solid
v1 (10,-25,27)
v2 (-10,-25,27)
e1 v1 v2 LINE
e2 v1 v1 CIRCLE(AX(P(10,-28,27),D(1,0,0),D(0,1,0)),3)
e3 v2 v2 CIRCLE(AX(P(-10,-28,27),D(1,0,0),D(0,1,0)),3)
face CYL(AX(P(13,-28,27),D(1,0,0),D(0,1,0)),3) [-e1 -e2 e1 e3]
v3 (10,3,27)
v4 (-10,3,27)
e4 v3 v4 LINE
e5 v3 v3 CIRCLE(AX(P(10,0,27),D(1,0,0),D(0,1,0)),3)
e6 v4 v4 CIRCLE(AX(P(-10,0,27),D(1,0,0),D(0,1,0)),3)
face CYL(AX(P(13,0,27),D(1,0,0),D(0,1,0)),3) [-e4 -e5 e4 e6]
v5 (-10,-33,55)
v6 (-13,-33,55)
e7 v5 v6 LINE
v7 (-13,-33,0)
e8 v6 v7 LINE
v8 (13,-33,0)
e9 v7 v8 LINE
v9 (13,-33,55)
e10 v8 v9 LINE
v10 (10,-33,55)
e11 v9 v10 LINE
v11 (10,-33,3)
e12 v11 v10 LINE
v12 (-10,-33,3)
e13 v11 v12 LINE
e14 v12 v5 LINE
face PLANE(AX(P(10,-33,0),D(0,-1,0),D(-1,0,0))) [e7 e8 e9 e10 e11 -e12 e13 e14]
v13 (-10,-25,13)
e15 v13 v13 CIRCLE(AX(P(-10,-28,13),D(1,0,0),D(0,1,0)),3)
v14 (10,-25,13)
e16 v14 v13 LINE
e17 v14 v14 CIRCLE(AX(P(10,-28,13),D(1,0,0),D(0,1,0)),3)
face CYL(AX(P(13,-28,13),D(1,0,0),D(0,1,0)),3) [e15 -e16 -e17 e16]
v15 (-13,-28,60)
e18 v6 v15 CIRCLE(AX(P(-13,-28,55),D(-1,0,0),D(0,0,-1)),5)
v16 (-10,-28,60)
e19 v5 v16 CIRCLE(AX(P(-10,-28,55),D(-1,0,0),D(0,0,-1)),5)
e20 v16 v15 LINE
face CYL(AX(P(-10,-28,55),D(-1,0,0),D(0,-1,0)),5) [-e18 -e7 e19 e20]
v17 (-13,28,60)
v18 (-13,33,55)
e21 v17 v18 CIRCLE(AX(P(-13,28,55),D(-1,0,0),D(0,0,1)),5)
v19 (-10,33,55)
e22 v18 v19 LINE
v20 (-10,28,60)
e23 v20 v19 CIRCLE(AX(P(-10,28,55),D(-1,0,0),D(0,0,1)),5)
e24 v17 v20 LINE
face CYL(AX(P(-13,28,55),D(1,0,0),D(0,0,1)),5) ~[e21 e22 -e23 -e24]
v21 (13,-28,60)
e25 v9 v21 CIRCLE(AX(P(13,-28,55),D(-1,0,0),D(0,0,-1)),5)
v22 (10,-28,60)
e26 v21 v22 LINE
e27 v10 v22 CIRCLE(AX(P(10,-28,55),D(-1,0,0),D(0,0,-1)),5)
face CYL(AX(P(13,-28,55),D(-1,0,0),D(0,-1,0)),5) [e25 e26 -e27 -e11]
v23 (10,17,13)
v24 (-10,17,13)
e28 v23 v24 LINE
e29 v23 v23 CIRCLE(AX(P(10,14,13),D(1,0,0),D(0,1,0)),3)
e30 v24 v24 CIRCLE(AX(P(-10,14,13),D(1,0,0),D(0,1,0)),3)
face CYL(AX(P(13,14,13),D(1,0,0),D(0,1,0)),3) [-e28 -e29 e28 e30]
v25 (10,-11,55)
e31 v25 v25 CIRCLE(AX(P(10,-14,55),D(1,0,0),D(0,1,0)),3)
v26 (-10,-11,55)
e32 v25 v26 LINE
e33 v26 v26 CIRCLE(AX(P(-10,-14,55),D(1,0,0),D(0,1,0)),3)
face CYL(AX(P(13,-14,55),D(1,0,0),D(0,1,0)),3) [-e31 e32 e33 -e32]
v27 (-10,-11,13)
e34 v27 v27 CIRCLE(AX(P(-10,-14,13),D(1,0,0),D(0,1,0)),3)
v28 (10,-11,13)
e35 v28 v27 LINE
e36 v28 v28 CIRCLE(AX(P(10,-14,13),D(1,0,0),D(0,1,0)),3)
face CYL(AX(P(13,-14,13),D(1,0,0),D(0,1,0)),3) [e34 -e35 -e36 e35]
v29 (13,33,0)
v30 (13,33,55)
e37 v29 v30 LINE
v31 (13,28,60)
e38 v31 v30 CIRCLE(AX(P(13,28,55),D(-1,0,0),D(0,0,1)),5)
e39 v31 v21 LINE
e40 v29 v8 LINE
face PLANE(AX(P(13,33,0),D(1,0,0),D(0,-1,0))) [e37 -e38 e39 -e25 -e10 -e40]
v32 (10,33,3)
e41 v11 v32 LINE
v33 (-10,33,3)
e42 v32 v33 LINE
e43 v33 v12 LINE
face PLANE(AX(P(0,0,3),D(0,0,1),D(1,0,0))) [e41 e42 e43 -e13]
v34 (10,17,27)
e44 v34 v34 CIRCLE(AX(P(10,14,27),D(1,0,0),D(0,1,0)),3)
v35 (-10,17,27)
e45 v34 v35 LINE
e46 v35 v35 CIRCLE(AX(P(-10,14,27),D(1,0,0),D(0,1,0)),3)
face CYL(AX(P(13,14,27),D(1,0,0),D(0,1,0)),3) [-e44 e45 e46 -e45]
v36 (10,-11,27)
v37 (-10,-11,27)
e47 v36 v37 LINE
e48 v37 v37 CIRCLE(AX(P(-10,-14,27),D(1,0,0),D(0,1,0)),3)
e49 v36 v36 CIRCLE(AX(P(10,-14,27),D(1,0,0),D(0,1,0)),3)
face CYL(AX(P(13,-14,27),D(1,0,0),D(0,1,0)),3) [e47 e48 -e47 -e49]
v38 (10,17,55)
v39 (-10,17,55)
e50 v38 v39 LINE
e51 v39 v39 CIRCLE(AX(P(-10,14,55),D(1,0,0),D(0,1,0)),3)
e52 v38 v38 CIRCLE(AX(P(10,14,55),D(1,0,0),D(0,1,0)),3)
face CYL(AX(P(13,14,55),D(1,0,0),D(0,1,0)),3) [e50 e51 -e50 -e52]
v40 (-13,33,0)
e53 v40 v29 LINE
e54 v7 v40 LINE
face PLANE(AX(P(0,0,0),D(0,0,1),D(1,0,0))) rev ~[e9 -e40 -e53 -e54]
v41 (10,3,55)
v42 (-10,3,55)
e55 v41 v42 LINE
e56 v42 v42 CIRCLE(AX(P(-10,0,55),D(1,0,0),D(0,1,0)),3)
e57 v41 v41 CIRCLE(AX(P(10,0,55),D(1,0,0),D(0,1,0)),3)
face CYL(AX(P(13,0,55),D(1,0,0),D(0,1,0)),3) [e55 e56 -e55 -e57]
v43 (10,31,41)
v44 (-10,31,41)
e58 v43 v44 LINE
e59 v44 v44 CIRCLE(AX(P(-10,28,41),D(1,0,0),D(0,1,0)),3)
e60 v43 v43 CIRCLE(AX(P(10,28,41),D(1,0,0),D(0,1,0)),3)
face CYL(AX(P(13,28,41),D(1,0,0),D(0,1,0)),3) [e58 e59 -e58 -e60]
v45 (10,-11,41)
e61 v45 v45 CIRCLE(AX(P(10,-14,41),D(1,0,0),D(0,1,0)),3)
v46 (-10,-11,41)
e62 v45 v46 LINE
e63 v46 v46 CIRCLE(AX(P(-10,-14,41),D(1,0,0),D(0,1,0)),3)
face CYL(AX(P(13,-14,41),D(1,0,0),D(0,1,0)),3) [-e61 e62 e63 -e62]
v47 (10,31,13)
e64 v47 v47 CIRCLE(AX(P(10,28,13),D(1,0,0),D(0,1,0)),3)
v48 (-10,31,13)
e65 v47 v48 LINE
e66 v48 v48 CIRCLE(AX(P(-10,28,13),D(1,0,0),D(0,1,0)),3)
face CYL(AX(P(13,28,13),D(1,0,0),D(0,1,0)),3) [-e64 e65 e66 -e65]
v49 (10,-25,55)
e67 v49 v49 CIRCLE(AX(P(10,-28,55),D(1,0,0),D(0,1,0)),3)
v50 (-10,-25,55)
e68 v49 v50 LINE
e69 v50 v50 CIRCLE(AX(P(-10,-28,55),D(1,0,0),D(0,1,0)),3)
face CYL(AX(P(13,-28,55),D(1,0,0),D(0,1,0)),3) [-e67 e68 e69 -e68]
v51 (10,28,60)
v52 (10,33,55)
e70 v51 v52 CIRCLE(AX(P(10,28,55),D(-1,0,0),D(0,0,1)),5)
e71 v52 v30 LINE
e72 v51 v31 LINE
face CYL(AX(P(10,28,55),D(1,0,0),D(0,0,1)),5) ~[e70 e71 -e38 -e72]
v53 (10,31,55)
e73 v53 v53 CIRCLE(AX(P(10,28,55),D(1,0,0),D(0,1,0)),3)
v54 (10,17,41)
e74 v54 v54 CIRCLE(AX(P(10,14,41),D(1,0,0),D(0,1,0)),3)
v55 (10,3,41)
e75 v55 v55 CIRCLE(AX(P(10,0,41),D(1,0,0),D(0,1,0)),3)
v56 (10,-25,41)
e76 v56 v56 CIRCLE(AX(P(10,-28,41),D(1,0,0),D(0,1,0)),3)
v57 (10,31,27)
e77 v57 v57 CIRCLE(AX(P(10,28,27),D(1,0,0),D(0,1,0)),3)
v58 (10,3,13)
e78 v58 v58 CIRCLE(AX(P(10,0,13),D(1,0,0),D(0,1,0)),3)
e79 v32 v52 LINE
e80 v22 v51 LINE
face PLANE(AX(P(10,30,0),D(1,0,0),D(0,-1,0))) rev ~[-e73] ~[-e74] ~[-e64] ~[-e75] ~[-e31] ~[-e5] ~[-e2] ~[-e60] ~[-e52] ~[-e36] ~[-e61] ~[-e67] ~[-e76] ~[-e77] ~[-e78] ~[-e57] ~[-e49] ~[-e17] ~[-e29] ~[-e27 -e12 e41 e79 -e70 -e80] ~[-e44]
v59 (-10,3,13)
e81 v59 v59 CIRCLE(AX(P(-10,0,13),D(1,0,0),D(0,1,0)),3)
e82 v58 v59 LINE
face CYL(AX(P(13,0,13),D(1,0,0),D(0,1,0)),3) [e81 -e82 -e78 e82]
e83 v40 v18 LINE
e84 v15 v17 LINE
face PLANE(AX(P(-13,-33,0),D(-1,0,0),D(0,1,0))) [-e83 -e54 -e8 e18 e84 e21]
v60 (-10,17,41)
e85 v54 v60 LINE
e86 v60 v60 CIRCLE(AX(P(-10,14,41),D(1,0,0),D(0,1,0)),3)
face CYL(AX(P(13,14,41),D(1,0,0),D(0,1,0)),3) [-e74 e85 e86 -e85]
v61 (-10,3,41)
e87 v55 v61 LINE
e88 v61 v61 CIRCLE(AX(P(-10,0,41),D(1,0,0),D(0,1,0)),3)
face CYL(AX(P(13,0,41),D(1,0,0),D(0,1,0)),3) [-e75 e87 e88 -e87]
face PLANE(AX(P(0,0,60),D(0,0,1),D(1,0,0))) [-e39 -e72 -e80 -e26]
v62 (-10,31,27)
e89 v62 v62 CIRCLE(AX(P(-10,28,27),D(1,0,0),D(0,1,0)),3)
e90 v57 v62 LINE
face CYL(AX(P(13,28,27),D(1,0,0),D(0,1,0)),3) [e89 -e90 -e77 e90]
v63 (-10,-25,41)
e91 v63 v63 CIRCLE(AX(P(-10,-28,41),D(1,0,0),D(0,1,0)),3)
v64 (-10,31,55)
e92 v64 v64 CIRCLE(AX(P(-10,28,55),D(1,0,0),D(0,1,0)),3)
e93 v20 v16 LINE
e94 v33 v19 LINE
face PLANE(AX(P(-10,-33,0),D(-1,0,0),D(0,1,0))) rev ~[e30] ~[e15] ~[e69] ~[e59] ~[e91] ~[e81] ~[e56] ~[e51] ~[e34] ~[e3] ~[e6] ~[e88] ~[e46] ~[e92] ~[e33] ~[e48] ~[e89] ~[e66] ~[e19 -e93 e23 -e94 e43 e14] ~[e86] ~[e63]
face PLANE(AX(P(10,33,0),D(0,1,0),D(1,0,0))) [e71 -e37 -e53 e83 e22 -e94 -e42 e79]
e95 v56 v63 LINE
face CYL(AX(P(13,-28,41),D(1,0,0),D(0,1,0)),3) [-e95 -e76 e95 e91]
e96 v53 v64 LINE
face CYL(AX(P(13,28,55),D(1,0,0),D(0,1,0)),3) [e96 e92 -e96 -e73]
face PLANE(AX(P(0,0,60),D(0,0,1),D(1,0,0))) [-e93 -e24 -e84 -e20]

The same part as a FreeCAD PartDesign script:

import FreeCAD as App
import Part
import Sketcher


def edges_at(feature, points):
    """Names of the edges that pass closest to the given points."""
    edges = feature.Shape.Edges
    near = lambda p: min(range(len(edges)), key=lambda i: edges[i].distToShape(Part.Vertex(*p))[0])
    return sorted({f"Edge{near(p) + 1}" for p in points})

doc = App.newDocument("Part")
body = doc.addObject("PartDesign::Body", "Body")

# Sketch on XY plane
sketch1 = doc.addObject("Sketcher::SketchObject", "Sketch")
body.addObject(sketch1)
sketch1.AttachmentSupport = (doc.XY_Plane, [""])
sketch1.MapMode = "FlatFace"
sketch1.addGeometry([
    Part.LineSegment(App.Vector(13, -33, 0), App.Vector(13, 33, 0)),
    Part.LineSegment(App.Vector(13, 33, 0), App.Vector(-13, 33, 0)),
    Part.LineSegment(App.Vector(-13, 33, 0), App.Vector(-13, -33, 0)),
    Part.LineSegment(App.Vector(-13, -33, 0), App.Vector(13, -33, 0)),
], False)
sketch1.addConstraint([
    Sketcher.Constraint("Coincident", 0, 2, 1, 1),
    Sketcher.Constraint("Coincident", 1, 2, 2, 1),
    Sketcher.Constraint("Coincident", 2, 2, 3, 1),
    Sketcher.Constraint("Coincident", 3, 2, 0, 1),
    Sketcher.Constraint("Vertical", 0),
    Sketcher.Constraint("Horizontal", 1),
    Sketcher.Constraint("Vertical", 2),
    Sketcher.Constraint("Horizontal", 3),
    Sketcher.Constraint("Symmetric", 0, 2, 2, 2, -1, 1),
    Sketcher.Constraint("DistanceX", 1, 2, 1, 1, 26.0),
    Sketcher.Constraint("DistanceY", 0, 1, 0, 2, 66.0),
])
pad1 = doc.addObject("PartDesign::Pad", "Pad")
body.addObject(pad1)
pad1.Profile = sketch1
pad1.Length = 3

# Sketch on XY plane
sketch2 = doc.addObject("Sketcher::SketchObject", "Sketch001")
body.addObject(sketch2)
sketch2.AttachmentSupport = (doc.XY_Plane, [""])
sketch2.MapMode = "FlatFace"
sketch2.addGeometry([
    Part.LineSegment(App.Vector(10, 33, 0), App.Vector(10, -33, 0)),  # 0
    Part.LineSegment(App.Vector(10, -33, 0), App.Vector(13, -33, 0)),  # 1
    Part.LineSegment(App.Vector(13, -33, 0), App.Vector(13, 33, 0)),  # 2
    Part.LineSegment(App.Vector(13, 33, 0), App.Vector(10, 33, 0)),  # 3
    Part.LineSegment(App.Vector(-10, -33, 0), App.Vector(-10, 33, 0)),  # 4
    Part.LineSegment(App.Vector(-10, 33, 0), App.Vector(-13, 33, 0)),  # 5
    Part.LineSegment(App.Vector(-13, 33, 0), App.Vector(-13, -33, 0)),  # 6
    Part.LineSegment(App.Vector(-13, -33, 0), App.Vector(-10, -33, 0)),  # 7
], False)
sketch2.addConstraint([
    Sketcher.Constraint("Coincident", 0, 2, 1, 1),
    Sketcher.Constraint("Coincident", 1, 2, 2, 1),
    Sketcher.Constraint("Coincident", 2, 2, 3, 1),
    Sketcher.Constraint("Coincident", 3, 2, 0, 1),
    Sketcher.Constraint("Coincident", 4, 2, 5, 1),
    Sketcher.Constraint("Coincident", 5, 2, 6, 1),
    Sketcher.Constraint("Coincident", 6, 2, 7, 1),
    Sketcher.Constraint("Coincident", 7, 2, 4, 1),
    Sketcher.Constraint("Vertical", 0),
    Sketcher.Constraint("Horizontal", 1),
    Sketcher.Constraint("Vertical", 2),
    Sketcher.Constraint("Horizontal", 3),
    Sketcher.Constraint("Vertical", 4),
    Sketcher.Constraint("Horizontal", 5),
    Sketcher.Constraint("Vertical", 6),
    Sketcher.Constraint("Horizontal", 7),
    Sketcher.Constraint("Symmetric", 0, 2, 4, 2, -1, 1),
    Sketcher.Constraint("Symmetric", 2, 2, 6, 2, -1, 1),
    Sketcher.Constraint("Horizontal", 3, 2, 4, 2),
    Sketcher.Constraint("DistanceX", 1, 1, 1, 2, 3.0),
    Sketcher.Constraint("DistanceY", 0, 2, 0, 1, 66.0),
    Sketcher.Constraint("DistanceX", -1, 1, 0, 2, 10.0),
])
pad2 = doc.addObject("PartDesign::Pad", "Pad001")
body.addObject(pad2)
pad2.Profile = sketch2
pad2.Length = 60

# Sketch on YZ plane
sketch3 = doc.addObject("Sketcher::SketchObject", "Sketch002")
body.addObject(sketch3)
sketch3.AttachmentSupport = (doc.YZ_Plane, [""])
sketch3.MapMode = "FlatFace"
sketch3.AttachmentOffset = App.Placement(App.Vector(0, 0, 13), App.Rotation())
sketch3.addGeometry([
    Part.Circle(App.Vector(-28, 55, 0), App.Vector(0, 0, 1), 3),  # 0
    Part.Circle(App.Vector(0, 55, 0), App.Vector(0, 0, 1), 3),  # 1
    Part.Circle(App.Vector(-14, 55, 0), App.Vector(0, 0, 1), 3),  # 2
    Part.Circle(App.Vector(0, 13, 0), App.Vector(0, 0, 1), 3),  # 3
    Part.Circle(App.Vector(14, 55, 0), App.Vector(0, 0, 1), 3),  # 4
    Part.Circle(App.Vector(28, 55, 0), App.Vector(0, 0, 1), 3),  # 5
    Part.Circle(App.Vector(-28, 41, 0), App.Vector(0, 0, 1), 3),  # 6
    Part.Circle(App.Vector(-14, 41, 0), App.Vector(0, 0, 1), 3),  # 7
    Part.Circle(App.Vector(0, 41, 0), App.Vector(0, 0, 1), 3),  # 8
    Part.Circle(App.Vector(14, 41, 0), App.Vector(0, 0, 1), 3),  # 9
    Part.Circle(App.Vector(28, 41, 0), App.Vector(0, 0, 1), 3),  # 10
    Part.Circle(App.Vector(-28, 27, 0), App.Vector(0, 0, 1), 3),  # 11
    Part.Circle(App.Vector(-14, 27, 0), App.Vector(0, 0, 1), 3),  # 12
    Part.Circle(App.Vector(0, 27, 0), App.Vector(0, 0, 1), 3),  # 13
    Part.Circle(App.Vector(14, 27, 0), App.Vector(0, 0, 1), 3),  # 14
    Part.Circle(App.Vector(28, 27, 0), App.Vector(0, 0, 1), 3),  # 15
    Part.Circle(App.Vector(-28, 13, 0), App.Vector(0, 0, 1), 3),  # 16
    Part.Circle(App.Vector(-14, 13, 0), App.Vector(0, 0, 1), 3),  # 17
    Part.Circle(App.Vector(14, 13, 0), App.Vector(0, 0, 1), 3),  # 18
    Part.Circle(App.Vector(28, 13, 0), App.Vector(0, 0, 1), 3),  # 19
], False)
sketch3.addConstraint([
    Sketcher.Constraint("Equal", 0, 1),
    Sketcher.Constraint("Equal", 1, 2),
    Sketcher.Constraint("Equal", 2, 3),
    Sketcher.Constraint("Equal", 3, 4),
    Sketcher.Constraint("Equal", 4, 5),
    Sketcher.Constraint("Equal", 5, 6),
    Sketcher.Constraint("Equal", 6, 7),
    Sketcher.Constraint("Equal", 7, 8),
    Sketcher.Constraint("Equal", 8, 9),
    Sketcher.Constraint("Equal", 9, 10),
    Sketcher.Constraint("Equal", 10, 11),
    Sketcher.Constraint("Equal", 11, 12),
    Sketcher.Constraint("Equal", 12, 13),
    Sketcher.Constraint("Equal", 13, 14),
    Sketcher.Constraint("Equal", 14, 15),
    Sketcher.Constraint("Equal", 15, 16),
    Sketcher.Constraint("Equal", 16, 17),
    Sketcher.Constraint("Equal", 17, 18),
    Sketcher.Constraint("Equal", 18, 19),
    Sketcher.Constraint("Symmetric", 2, 3, 4, 3, -2),
    Sketcher.Constraint("Symmetric", 0, 3, 5, 3, -2),
    Sketcher.Constraint("Symmetric", 7, 3, 9, 3, -2),
    Sketcher.Constraint("Symmetric", 6, 3, 10, 3, -2),
    Sketcher.Constraint("Symmetric", 12, 3, 14, 3, -2),
    Sketcher.Constraint("Symmetric", 11, 3, 15, 3, -2),
    Sketcher.Constraint("Symmetric", 17, 3, 18, 3, -2),
    Sketcher.Constraint("Symmetric", 16, 3, 19, 3, -2),
    Sketcher.Constraint("PointOnObject", 1, 3, -2),
    Sketcher.Constraint("PointOnObject", 3, 3, -2),
    Sketcher.Constraint("PointOnObject", 8, 3, -2),
    Sketcher.Constraint("PointOnObject", 13, 3, -2),
    Sketcher.Constraint("Horizontal", 0, 3, 1, 3),
    Sketcher.Constraint("Horizontal", 1, 3, 2, 3),
    Sketcher.Constraint("Horizontal", 6, 3, 7, 3),
    Sketcher.Constraint("Horizontal", 7, 3, 8, 3),
    Sketcher.Constraint("Horizontal", 11, 3, 12, 3),
    Sketcher.Constraint("Horizontal", 12, 3, 13, 3),
    Sketcher.Constraint("Horizontal", 3, 3, 16, 3),
    Sketcher.Constraint("Horizontal", 16, 3, 17, 3),
    Sketcher.Constraint("Vertical", 0, 3, 6, 3),
    Sketcher.Constraint("Vertical", 2, 3, 7, 3),
    Sketcher.Constraint("Vertical", 6, 3, 11, 3),
    Sketcher.Constraint("Vertical", 7, 3, 12, 3),
    Sketcher.Constraint("Vertical", 11, 3, 16, 3),
    Sketcher.Constraint("Vertical", 12, 3, 17, 3),
    Sketcher.Constraint("Diameter", 0, 6.0),
    Sketcher.Constraint("DistanceY", 3, 3, 1, 3, 42.0),
    Sketcher.Constraint("DistanceX", 0, 3, 4, 3, 42.0),
    Sketcher.Constraint("DistanceX", 0, 3, -1, 1, 28.0),
    Sketcher.Constraint("DistanceY", -1, 1, 0, 3, 55.0),
    Sketcher.Constraint("DistanceY", -1, 1, 6, 3, 41.0),
    Sketcher.Constraint("DistanceY", -1, 1, 11, 3, 27.0),
])
pad3 = doc.addObject("PartDesign::Pad", "Pad002")
body.addObject(pad3)
pad3.Profile = sketch3
pad3.Length = 26
pad3.Reversed = True
doc.recompute()

fillet = doc.addObject("PartDesign::Fillet", "Fillet")
body.addObject(fillet)
fillet.Base = (pad3, edges_at(pad3, [
    (11.5, -33, 60),
    (-11.5, -33, 60),
    (11.5, 33, 60),
    (-11.5, 33, 60),
]))
fillet.Radius = 5

doc.recompute()
